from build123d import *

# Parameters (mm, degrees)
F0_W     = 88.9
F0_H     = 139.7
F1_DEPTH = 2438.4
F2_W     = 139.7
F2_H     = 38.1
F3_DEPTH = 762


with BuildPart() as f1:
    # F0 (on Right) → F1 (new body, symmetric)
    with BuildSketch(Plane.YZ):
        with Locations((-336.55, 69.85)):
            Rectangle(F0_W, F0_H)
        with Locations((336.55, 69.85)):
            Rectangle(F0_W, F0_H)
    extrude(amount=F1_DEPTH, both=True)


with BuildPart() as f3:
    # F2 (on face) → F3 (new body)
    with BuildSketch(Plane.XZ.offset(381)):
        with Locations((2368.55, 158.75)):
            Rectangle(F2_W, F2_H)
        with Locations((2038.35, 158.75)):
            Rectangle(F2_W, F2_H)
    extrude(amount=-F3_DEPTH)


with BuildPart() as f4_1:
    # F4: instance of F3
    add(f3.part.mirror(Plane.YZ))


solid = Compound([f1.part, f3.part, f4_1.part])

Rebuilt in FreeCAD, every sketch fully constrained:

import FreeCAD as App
import Part
import Sketcher
Q = App.Units.Quantity


def add_polygon(sketch, points):
    """Adds a closed chain of lines whose ends are joined by coincident constraints."""
    first, n = sketch.GeometryCount, len(points)
    for a, b in zip(points, points[1:] + points[:1]):
        sketch.addGeometry(Part.LineSegment(App.Vector(*a, 0), App.Vector(*b, 0)), False)
    for i in range(n):
        sketch.addConstraint(Sketcher.Constraint("Coincident", first + i, 2, first + (i + 1) % n, 1))

doc = App.newDocument("Part")
body = doc.addObject("PartDesign::Body", "Body")
body.AllowCompound = True

# Sketch on YZ plane
sketch1 = body.newObject("Sketcher::SketchObject", "Sketch")
sketch1.AttachmentSupport = (doc.getObject("YZ_Plane"), [""])
sketch1.MapMode = "FlatFace"
add_polygon(sketch1, [(-381, 140), (-381, 0), (-292, 0), (-292, 140)])  # lines 0-3
add_polygon(sketch1, [(292, 140), (292, 0), (381, 0), (381, 140)])  # lines 4-7
sketch1.addConstraint(Sketcher.Constraint("Vertical", 0))
sketch1.addConstraint(Sketcher.Constraint("Horizontal", 1))
sketch1.addConstraint(Sketcher.Constraint("Vertical", 2))
sketch1.addConstraint(Sketcher.Constraint("Horizontal", 3))
sketch1.addConstraint(Sketcher.Constraint("Vertical", 4))
sketch1.addConstraint(Sketcher.Constraint("Horizontal", 5))
sketch1.addConstraint(Sketcher.Constraint("Vertical", 6))
sketch1.addConstraint(Sketcher.Constraint("Horizontal", 7))
sketch1.addConstraint(Sketcher.Constraint("Symmetric", 1, 2, 4, 2, -1, 1))
sketch1.addConstraint(Sketcher.Constraint("Symmetric", 0, 2, 5, 2, -2))
sketch1.addConstraint(Sketcher.Constraint("Horizontal", 3, 2, 6, 2))
sketch1.addConstraint(Sketcher.Constraint("DistanceX", 1, 1, 1, 2, Q("3.5 in")))
sketch1.addConstraint(Sketcher.Constraint("DistanceY", 0, 2, 0, 1, Q("5.5 in")))
sketch1.addConstraint(Sketcher.Constraint("DistanceX", 0, 2, -1, 1, Q("15 in")))
pad1 = body.newObject("PartDesign::Pad", "Pad")
pad1.Profile = sketch1
pad1.Length = Q("192 in")
pad1.Midplane = True
body2 = doc.addObject("PartDesign::Body", "Body001")
body2.AllowCompound = True

# Sketch on XZ plane
sketch2 = body2.newObject("Sketcher::SketchObject", "Sketch001")
sketch2.AttachmentSupport = (doc.getObject("XZ_Plane001"), [""])
sketch2.MapMode = "FlatFace"
sketch2.AttachmentOffset = App.Placement(App.Vector(0, 0, 15 * 25.4), App.Rotation())
add_polygon(sketch2, [(2299, 178), (2299, 140), (2438, 140), (2438, 178)])  # lines 0-3
add_polygon(sketch2, [(1968, 178), (1968, 140), (2108, 140), (2108, 178)])  # lines 4-7
sketch2.addConstraint(Sketcher.Constraint("Vertical", 0))
sketch2.addConstraint(Sketcher.Constraint("Horizontal", 1))
sketch2.addConstraint(Sketcher.Constraint("Vertical", 2))
sketch2.addConstraint(Sketcher.Constraint("Horizontal", 3))
sketch2.addConstraint(Sketcher.Constraint("Vertical", 4))
sketch2.addConstraint(Sketcher.Constraint("Horizontal", 5))
sketch2.addConstraint(Sketcher.Constraint("Vertical", 6))
sketch2.addConstraint(Sketcher.Constraint("Horizontal", 7))
sketch2.addConstraint(Sketcher.Constraint("Horizontal", 1, 2, 4, 2))
sketch2.addConstraint(Sketcher.Constraint("Horizontal", 3, 2, 6, 2))
sketch2.addConstraint(Sketcher.Constraint("Equal", 3, 5))
sketch2.addConstraint(Sketcher.Constraint("DistanceX", 1, 1, 1, 2, Q("5.5 in")))
sketch2.addConstraint(Sketcher.Constraint("DistanceY", 0, 2, 0, 1, Q("1.5 in")))
sketch2.addConstraint(Sketcher.Constraint("DistanceX", -1, 1, 1, 2, Q("96 in")))
sketch2.addConstraint(Sketcher.Constraint("DistanceY", -1, 1, 2, 2, Q("7 in")))
sketch2.addConstraint(Sketcher.Constraint("DistanceX", -1, 1, 5, 2, Q("83 in")))
pad2 = body2.newObject("PartDesign::Pad", "Pad001")
pad2.Profile = sketch2
pad2.Length = Q("30 in")
pad2.Reversed = True
body3 = doc.addObject("PartDesign::Body", "Body002")
body3.AllowCompound = True
doc.recompute()

mirroring = doc.addObject("Part::Mirroring", "Mirroring")
mirroring.Source = body2
mirroring.Base = App.Vector(0, 0, 0)
mirroring.Normal = App.Vector(1, 0, 0)
body3.BaseFeature = mirroring
doc.recompute()
mirroring.Visibility = False

doc.recompute()
